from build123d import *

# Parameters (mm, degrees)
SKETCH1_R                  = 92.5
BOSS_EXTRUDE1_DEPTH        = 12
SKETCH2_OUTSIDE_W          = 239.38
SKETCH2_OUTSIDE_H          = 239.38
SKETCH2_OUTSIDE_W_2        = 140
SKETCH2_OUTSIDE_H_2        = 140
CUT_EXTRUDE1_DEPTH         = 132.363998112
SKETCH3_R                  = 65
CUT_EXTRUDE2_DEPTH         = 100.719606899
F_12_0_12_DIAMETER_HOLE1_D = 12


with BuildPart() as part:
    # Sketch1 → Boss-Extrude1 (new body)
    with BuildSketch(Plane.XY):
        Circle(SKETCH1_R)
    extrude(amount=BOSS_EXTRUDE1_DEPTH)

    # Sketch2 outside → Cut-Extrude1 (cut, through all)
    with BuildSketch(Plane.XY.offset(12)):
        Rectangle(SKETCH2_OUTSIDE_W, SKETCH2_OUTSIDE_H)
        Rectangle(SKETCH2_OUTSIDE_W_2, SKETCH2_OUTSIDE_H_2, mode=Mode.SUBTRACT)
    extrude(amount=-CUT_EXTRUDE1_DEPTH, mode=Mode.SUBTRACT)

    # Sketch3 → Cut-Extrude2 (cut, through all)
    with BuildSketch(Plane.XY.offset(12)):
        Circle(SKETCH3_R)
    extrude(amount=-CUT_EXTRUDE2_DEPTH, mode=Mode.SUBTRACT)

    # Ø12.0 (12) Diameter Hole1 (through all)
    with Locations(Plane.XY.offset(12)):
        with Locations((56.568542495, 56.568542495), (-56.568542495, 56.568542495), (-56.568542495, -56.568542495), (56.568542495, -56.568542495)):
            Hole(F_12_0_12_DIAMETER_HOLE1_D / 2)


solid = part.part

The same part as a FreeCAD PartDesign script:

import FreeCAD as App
import Part
import Sketcher
from FreeCAD import Vector


def add_polygon(sketch, points):
    """Adds a closed chain of lines whose ends are joined by coincident constraints."""
    first, n = sketch.GeometryCount, len(points)
    for a, b in zip(points, points[1:] + points[:1]):
        sketch.addGeometry(Part.LineSegment(App.Vector(*a, 0), App.Vector(*b, 0)), False)
    for i in range(n):
        sketch.addConstraint(Sketcher.Constraint("Coincident", first + i, 2, first + (i + 1) % n, 1))

doc = App.newDocument("Part")
body = doc.addObject("PartDesign::Body", "Body")

# Sketch on XY plane
sketch1 = body.newObject("Sketcher::SketchObject", "Sketch")
sketch1.AttachmentSupport = (doc.getObject("XY_Plane"), [""])
sketch1.MapMode = "FlatFace"
sketch1.addGeometry(Part.Circle(Vector(0, 0, 0), Vector(0, 0, 1), 92), False)
sketch1.addConstraint([
    Sketcher.Constraint("Coincident", 0, 3, -1, 1),
    Sketcher.Constraint("Diameter", 0, 185.0),
])
pad1 = body.newObject("PartDesign::Pad", "Pad")
pad1.Profile = sketch1
pad1.Length = 12

# Sketch on XY plane
sketch2 = body.newObject("Sketcher::SketchObject", "Sketch001")
sketch2.AttachmentSupport = (doc.getObject("XY_Plane"), [""])
sketch2.MapMode = "FlatFace"
sketch2.AttachmentOffset = App.Placement(Vector(0, 0, 12), App.Rotation())
add_polygon(sketch2, [(-120, 120), (-120, -120), (120, -120), (120, 120)])  # lines 0-3
add_polygon(sketch2, [(70, -70), (-70, -70), (-70, 70), (70, 70)])  # lines 4-7
sketch2.addConstraint([
    Sketcher.Constraint("Vertical", 0),
    Sketcher.Constraint("Horizontal", 1),
    Sketcher.Constraint("Vertical", 2),
    Sketcher.Constraint("Horizontal", 3),
    Sketcher.Constraint("Horizontal", 4),
    Sketcher.Constraint("Vertical", 5),
    Sketcher.Constraint("Horizontal", 6),
    Sketcher.Constraint("Vertical", 7),
    Sketcher.Constraint("Symmetric", 0, 2, 2, 2, -1, 1),
    Sketcher.Constraint("Symmetric", 4, 2, 6, 2, -1, 1),
    Sketcher.Constraint("Equal", 3, 0),
    Sketcher.Constraint("Equal", 6, 5),
    Sketcher.Constraint("DistanceX", 4, 2, 4, 1, 140.0),
    Sketcher.Constraint("DistanceX", 1, 1, 1, 2, 239.38),
])
pocket1 = body.newObject("PartDesign::Pocket", "Pocket")
pocket1.Profile = sketch2
pocket1.Type = "ThroughAll"

# Sketch on XY plane
sketch3 = body.newObject("Sketcher::SketchObject", "Sketch002")
sketch3.AttachmentSupport = (doc.getObject("XY_Plane"), [""])
sketch3.MapMode = "FlatFace"
sketch3.AttachmentOffset = App.Placement(Vector(0, 0, 12), App.Rotation())
sketch3.addGeometry(Part.Circle(Vector(0, 0, 0), Vector(0, 0, 1), 65), False)
sketch3.addConstraint([
    Sketcher.Constraint("Coincident", 0, 3, -1, 1),
    Sketcher.Constraint("Diameter", 0, 130.0),
])
pocket2 = body.newObject("PartDesign::Pocket", "Pocket001")
pocket2.Profile = sketch3
pocket2.Type = "ThroughAll"

# Sketch on XY plane
sketch4 = body.newObject("Sketcher::SketchObject", "Sketch003")
sketch4.AttachmentSupport = (doc.getObject("XY_Plane"), [""])
sketch4.MapMode = "FlatFace"
sketch4.AttachmentOffset = App.Placement(Vector(0, 0, 12), App.Rotation())
sketch4.addGeometry([
    Part.Circle(Vector(57, 57, 0), Vector(0, 0, 1), 6),
    Part.Circle(Vector(-57, 57, 0), Vector(0, 0, 1), 6),
    Part.Circle(Vector(-57, -57, 0), Vector(0, 0, 1), 6),
    Part.Circle(Vector(57, -57, 0), Vector(0, 0, 1), 6),
], False)
sketch4.addConstraint([
    Sketcher.Constraint("Equal", 0, 1),
    Sketcher.Constraint("Equal", 1, 2),
    Sketcher.Constraint("Equal", 2, 3),
    Sketcher.Constraint("Symmetric", 0, 3, 2, 3, -1, 1),
    Sketcher.Constraint("Symmetric", 1, 3, 3, 3, -1, 1),
    Sketcher.Constraint("Symmetric", 0, 3, 1, 3, -2),
    Sketcher.Constraint("Diameter", 0, 12.0),
    Sketcher.Constraint("DistanceX", -1, 1, 0, 3, 56.568542),
    Sketcher.Constraint("DistanceY", -1, 1, 0, 3, 56.568542),
])
doc.recompute()
hole = body.newObject("PartDesign::Hole", "Hole")
hole.Profile = sketch4
hole.ThreadType = "None"
hole.Diameter = 12
hole.DepthType = "ThroughAll"

doc.recompute()
